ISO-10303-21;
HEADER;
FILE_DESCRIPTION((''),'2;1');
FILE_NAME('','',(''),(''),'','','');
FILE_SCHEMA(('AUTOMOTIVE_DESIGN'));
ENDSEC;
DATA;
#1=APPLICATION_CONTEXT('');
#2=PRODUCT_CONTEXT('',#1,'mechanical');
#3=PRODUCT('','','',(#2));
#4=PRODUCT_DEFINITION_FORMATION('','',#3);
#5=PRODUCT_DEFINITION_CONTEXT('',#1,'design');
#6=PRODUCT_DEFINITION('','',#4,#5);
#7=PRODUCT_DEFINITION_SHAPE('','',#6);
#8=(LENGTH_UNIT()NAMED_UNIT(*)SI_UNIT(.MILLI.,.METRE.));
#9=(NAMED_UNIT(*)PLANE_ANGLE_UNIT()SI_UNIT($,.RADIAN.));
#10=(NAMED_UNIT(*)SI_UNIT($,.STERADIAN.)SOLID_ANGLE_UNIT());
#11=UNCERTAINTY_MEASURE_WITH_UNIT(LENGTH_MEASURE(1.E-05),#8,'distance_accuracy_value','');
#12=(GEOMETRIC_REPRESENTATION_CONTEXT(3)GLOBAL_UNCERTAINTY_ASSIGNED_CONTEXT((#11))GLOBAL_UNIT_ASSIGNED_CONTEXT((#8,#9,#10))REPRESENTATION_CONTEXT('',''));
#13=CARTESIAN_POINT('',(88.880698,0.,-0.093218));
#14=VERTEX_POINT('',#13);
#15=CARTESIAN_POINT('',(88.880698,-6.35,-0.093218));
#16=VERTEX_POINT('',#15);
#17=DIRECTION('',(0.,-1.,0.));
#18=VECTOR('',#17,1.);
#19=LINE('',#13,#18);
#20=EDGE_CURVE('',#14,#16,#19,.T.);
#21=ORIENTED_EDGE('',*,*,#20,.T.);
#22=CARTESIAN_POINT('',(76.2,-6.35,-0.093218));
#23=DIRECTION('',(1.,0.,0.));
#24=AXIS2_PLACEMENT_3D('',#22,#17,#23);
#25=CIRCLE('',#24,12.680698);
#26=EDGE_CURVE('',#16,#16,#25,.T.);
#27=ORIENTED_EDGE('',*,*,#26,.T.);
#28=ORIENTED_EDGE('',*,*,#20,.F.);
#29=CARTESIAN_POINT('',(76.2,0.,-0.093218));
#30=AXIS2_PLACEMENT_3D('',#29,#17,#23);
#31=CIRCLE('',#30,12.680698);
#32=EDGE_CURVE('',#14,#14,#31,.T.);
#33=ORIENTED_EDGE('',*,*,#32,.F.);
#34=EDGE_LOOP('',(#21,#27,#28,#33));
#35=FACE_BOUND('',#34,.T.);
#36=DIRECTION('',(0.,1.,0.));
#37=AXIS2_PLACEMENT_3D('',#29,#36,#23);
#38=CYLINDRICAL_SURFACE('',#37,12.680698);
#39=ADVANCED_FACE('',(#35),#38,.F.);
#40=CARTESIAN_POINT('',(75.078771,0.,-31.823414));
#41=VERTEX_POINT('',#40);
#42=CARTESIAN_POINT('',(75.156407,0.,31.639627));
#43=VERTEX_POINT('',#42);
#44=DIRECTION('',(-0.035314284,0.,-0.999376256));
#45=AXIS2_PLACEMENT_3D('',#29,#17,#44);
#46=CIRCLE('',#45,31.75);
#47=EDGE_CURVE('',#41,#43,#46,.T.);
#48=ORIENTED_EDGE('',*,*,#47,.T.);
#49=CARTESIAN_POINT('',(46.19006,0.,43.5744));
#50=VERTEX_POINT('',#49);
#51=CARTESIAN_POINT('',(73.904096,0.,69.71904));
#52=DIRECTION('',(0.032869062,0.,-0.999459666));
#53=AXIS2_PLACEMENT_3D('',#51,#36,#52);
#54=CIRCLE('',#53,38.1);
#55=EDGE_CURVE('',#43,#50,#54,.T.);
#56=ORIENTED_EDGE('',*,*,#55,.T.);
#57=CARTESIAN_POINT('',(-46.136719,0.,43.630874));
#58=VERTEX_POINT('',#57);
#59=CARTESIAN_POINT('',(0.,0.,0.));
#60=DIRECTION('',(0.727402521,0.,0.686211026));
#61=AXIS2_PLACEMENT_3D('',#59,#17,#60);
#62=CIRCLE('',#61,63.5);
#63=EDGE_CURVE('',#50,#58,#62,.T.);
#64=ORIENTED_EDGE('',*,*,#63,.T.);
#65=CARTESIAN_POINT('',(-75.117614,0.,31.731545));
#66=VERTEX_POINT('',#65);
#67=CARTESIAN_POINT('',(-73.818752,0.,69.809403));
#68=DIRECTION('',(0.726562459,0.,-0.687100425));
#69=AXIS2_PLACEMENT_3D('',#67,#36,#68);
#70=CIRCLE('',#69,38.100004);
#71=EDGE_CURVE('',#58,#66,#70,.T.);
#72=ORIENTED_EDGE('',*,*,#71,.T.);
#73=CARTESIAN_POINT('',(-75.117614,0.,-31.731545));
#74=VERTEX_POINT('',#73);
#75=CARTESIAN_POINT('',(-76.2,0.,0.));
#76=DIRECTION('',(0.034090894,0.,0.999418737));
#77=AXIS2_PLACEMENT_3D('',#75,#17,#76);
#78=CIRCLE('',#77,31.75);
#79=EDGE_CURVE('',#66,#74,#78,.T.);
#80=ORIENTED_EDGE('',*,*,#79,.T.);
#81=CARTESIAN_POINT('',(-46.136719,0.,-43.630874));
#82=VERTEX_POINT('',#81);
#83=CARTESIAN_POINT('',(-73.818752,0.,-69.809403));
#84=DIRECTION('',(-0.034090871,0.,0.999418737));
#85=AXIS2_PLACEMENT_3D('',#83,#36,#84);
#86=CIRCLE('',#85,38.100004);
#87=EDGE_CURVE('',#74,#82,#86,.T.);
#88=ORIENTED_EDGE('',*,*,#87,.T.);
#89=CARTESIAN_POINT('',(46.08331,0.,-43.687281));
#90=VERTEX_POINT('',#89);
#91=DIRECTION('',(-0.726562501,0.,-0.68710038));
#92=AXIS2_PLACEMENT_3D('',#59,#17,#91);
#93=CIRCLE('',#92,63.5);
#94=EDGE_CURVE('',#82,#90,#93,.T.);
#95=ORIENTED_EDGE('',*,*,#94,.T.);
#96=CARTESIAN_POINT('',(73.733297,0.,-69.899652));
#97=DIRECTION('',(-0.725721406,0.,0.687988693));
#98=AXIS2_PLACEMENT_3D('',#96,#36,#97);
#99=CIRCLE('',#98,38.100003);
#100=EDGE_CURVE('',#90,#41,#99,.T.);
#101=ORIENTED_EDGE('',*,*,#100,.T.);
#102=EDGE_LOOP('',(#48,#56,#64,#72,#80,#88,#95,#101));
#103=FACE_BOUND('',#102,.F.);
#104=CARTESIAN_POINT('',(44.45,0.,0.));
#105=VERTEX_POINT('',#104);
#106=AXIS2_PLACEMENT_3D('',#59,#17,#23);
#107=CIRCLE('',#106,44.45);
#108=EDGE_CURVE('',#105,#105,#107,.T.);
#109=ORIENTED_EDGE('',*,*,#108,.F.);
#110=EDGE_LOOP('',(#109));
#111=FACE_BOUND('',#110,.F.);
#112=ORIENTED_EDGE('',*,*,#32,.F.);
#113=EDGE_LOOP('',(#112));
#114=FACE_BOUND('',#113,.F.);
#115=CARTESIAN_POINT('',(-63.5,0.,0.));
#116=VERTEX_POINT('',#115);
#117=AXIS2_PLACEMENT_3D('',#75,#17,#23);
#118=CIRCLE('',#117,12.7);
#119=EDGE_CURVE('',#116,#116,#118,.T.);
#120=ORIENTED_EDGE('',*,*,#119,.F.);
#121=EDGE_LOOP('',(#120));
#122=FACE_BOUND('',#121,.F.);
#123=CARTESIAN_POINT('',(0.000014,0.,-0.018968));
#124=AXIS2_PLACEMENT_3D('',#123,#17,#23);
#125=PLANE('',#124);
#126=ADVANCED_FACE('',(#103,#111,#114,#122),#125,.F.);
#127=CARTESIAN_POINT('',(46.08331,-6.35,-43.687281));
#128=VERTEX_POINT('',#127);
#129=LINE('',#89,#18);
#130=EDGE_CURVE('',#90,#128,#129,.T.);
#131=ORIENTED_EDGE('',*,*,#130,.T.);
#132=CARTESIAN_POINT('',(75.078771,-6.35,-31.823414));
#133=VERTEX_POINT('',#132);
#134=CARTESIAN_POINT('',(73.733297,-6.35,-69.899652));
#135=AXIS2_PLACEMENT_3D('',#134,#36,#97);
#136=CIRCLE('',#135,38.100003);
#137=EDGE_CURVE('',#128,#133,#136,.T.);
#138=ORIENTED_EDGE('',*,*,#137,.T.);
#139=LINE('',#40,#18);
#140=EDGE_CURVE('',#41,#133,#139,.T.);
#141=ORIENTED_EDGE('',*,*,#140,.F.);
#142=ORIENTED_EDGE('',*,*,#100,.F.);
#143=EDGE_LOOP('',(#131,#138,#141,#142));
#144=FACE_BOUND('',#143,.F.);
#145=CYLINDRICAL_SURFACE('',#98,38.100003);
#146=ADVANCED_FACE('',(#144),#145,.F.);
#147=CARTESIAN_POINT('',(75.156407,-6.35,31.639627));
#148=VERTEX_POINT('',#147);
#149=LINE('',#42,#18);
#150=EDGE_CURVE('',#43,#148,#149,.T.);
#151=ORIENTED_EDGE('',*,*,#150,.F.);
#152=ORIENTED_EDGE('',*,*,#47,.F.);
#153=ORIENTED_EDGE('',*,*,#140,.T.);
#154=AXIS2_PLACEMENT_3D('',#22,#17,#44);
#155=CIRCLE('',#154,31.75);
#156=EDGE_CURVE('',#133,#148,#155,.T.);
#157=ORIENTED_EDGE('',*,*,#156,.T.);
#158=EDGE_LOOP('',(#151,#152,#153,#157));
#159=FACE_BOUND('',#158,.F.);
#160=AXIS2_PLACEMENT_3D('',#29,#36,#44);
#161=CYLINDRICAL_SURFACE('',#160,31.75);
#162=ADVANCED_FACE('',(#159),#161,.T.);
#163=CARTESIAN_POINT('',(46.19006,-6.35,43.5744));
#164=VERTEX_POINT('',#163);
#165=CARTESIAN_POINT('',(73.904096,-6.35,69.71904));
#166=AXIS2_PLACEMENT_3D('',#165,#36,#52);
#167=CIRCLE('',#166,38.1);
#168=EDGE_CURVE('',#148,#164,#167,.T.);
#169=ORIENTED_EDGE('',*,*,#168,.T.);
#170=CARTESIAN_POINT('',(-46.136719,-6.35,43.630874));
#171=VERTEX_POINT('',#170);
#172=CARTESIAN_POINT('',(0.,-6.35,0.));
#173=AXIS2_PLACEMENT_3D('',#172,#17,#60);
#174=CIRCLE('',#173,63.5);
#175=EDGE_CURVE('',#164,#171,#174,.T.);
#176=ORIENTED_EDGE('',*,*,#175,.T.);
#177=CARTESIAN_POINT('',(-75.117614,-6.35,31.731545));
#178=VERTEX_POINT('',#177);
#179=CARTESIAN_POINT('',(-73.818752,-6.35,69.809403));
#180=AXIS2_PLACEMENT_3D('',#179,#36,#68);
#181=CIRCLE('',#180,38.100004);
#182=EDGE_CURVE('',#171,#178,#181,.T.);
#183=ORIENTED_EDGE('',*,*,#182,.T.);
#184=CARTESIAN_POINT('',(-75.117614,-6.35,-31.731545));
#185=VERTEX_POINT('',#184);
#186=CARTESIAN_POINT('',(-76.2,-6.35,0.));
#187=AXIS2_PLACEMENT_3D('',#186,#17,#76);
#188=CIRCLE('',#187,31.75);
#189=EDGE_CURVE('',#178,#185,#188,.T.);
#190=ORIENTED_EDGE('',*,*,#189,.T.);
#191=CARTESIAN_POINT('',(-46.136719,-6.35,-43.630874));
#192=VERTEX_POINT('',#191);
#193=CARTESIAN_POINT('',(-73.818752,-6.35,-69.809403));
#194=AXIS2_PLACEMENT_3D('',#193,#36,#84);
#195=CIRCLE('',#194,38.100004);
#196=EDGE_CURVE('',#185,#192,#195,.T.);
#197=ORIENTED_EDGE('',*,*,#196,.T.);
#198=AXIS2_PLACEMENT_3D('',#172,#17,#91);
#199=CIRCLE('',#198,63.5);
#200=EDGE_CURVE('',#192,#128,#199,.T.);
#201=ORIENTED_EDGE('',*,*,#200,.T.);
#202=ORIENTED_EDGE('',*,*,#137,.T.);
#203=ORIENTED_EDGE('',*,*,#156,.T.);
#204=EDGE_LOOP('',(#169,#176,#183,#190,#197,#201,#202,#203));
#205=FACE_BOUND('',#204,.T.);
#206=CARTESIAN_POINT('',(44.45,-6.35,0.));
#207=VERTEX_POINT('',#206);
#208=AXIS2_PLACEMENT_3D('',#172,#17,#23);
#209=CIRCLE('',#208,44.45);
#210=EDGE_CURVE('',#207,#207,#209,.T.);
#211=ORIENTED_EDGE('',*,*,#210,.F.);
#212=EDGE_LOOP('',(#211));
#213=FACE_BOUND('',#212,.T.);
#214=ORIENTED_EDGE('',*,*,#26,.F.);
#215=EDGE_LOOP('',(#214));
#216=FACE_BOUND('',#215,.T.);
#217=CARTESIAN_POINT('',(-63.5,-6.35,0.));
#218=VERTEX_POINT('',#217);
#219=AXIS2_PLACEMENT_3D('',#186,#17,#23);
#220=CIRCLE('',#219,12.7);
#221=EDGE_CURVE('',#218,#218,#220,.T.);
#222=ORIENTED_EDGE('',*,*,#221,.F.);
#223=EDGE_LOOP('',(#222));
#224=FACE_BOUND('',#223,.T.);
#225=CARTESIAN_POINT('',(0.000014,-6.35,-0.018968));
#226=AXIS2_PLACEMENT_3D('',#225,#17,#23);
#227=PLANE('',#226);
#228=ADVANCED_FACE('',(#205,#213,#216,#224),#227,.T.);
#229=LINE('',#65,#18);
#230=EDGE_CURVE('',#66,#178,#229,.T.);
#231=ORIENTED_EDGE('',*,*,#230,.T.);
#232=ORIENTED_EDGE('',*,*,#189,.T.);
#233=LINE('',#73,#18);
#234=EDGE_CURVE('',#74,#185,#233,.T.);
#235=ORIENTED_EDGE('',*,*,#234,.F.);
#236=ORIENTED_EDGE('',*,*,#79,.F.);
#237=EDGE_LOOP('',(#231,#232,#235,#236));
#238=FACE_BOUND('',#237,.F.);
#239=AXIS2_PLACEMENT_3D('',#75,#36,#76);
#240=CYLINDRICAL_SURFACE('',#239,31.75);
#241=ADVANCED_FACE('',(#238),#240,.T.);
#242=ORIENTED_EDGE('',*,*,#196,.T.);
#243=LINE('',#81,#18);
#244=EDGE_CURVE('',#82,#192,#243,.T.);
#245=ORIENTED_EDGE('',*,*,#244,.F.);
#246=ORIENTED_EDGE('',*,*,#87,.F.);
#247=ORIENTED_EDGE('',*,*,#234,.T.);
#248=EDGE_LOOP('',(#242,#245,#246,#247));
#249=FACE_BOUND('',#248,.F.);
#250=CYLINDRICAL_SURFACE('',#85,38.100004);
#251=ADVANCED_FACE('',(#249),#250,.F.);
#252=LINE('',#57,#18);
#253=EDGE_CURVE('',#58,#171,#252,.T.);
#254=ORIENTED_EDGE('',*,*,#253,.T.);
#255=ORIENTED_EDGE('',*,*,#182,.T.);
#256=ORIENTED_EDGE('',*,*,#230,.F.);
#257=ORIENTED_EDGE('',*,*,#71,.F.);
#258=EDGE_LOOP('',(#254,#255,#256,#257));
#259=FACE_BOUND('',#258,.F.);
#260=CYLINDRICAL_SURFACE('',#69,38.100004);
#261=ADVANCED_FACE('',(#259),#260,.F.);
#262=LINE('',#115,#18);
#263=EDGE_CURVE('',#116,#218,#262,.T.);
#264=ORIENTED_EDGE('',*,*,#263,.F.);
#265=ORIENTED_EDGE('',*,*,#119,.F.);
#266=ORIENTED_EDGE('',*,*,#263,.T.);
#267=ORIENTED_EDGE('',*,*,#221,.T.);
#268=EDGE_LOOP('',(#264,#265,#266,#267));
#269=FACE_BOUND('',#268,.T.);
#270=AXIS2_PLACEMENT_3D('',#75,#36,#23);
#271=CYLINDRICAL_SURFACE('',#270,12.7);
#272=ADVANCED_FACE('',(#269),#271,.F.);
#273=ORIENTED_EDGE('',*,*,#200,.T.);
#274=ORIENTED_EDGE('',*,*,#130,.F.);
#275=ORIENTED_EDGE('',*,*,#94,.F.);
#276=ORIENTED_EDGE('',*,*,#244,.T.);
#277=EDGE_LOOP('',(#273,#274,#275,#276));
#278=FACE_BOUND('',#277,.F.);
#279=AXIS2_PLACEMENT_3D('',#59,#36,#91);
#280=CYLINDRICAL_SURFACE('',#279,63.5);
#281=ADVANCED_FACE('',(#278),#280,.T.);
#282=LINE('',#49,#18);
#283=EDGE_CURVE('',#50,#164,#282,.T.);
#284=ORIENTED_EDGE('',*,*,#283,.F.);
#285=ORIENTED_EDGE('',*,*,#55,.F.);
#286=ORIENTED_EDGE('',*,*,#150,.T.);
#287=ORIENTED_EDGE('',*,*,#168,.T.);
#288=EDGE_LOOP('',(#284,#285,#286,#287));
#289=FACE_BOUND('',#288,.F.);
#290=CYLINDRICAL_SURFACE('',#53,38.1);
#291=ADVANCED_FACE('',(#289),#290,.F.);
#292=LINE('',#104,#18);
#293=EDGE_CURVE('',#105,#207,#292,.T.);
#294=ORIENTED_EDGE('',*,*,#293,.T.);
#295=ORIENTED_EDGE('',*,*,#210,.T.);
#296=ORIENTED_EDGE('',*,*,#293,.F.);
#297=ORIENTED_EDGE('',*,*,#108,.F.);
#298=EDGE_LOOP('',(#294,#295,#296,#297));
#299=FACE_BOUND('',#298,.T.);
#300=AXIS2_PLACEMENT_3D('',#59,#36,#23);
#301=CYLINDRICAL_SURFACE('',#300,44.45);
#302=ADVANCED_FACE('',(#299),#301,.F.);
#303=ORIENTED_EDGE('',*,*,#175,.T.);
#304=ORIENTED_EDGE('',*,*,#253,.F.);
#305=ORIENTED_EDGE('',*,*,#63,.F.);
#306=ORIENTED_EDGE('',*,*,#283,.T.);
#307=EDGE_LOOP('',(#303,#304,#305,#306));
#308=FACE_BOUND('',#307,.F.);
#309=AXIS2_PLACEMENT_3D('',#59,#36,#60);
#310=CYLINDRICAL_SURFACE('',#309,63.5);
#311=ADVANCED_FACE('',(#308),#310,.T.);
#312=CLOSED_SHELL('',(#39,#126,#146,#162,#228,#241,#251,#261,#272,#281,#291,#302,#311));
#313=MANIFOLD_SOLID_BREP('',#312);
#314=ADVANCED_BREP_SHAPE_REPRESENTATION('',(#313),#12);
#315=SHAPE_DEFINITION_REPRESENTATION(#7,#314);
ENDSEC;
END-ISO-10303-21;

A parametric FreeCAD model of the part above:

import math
import FreeCAD as App
import Part
import Sketcher
Q = App.Units.Quantity

doc = App.newDocument("Part")
body = doc.addObject("PartDesign::Body", "Body")

# Sketch on XZ plane
sketch1 = body.newObject("Sketcher::SketchObject", "Sketch")
sketch1.AttachmentSupport = (doc.getObject("XZ_Plane"), [""])
sketch1.MapMode = "FlatFace"
sketch1.addGeometry(Part.ArcOfCircle(Part.Circle(App.Vector(-74, 70, 0), App.Vector(0, 0, 1), 38), math.radians(-92), math.radians(-43)), False)
sketch1.addGeometry(Part.ArcOfCircle(Part.Circle(App.Vector(-76, 0, 0), App.Vector(0, 0, 1), 32), math.radians(88), math.radians(272)), False)
sketch1.addGeometry(Part.ArcOfCircle(Part.Circle(App.Vector(-74, -70, 0), App.Vector(0, 0, 1), 38), math.radians(43), math.radians(92)), False)
sketch1.addGeometry(Part.ArcOfCircle(Part.Circle(App.Vector(0, 0, 0), App.Vector(0, 0, 1), 64), math.radians(-137), math.radians(-43)), False)
sketch1.addGeometry(Part.ArcOfCircle(Part.Circle(App.Vector(74, -70, 0), App.Vector(0, 0, 1), 38), math.radians(88), math.radians(137)), False)
sketch1.addGeometry(Part.ArcOfCircle(Part.Circle(App.Vector(76, 0, 0), App.Vector(0, 0, 1), 32), math.radians(-92), math.radians(92)), False)
sketch1.addGeometry(Part.ArcOfCircle(Part.Circle(App.Vector(74, 70, 0), App.Vector(0, 0, 1), 38), math.radians(-137), math.radians(-88)), False)
sketch1.addGeometry(Part.ArcOfCircle(Part.Circle(App.Vector(0, 0, 0), App.Vector(0, 0, 1), 64), math.radians(43), math.radians(137)), False)
sketch1.addGeometry(Part.Circle(App.Vector(76, 0, 0), App.Vector(0, 0, 1), 13), False)
sketch1.addGeometry(Part.Circle(App.Vector(-76, 0, 0), App.Vector(0, 0, 1), 13), False)
sketch1.addGeometry(Part.Circle(App.Vector(0, 0, 0), App.Vector(0, 0, 1), 44), False)
sketch1.addConstraint(Sketcher.Constraint("Tangent", 0, 1, 1, 1))
sketch1.addConstraint(Sketcher.Constraint("Tangent", 1, 2, 2, 2))
sketch1.addConstraint(Sketcher.Constraint("Tangent", 2, 1, 3, 1))
sketch1.addConstraint(Sketcher.Constraint("Tangent", 3, 2, 4, 2))
sketch1.addConstraint(Sketcher.Constraint("Tangent", 4, 1, 5, 1))
sketch1.addConstraint(Sketcher.Constraint("Tangent", 5, 2, 6, 2))
sketch1.addConstraint(Sketcher.Constraint("Tangent", 6, 1, 7, 1))
sketch1.addConstraint(Sketcher.Constraint("Tangent", 7, 2, 0, 2))
sketch1.addConstraint(Sketcher.Constraint("Coincident", 3, 3, -1, 1))
sketch1.addConstraint(Sketcher.Constraint("Coincident", 7, 3, -1, 1))
sketch1.addConstraint(Sketcher.Constraint("Coincident", 10, 3, -1, 1))
sketch1.addConstraint(Sketcher.Constraint("Coincident", 8, 3, 5, 3))
sketch1.addConstraint(Sketcher.Constraint("Coincident", 9, 3, 1, 3))
sketch1.addConstraint(Sketcher.Constraint("Equal", 0, 2))
sketch1.addConstraint(Sketcher.Constraint("Equal", 2, 4))
sketch1.addConstraint(Sketcher.Constraint("Equal", 1, 5))
sketch1.addConstraint(Sketcher.Constraint("Equal", 3, 7))
sketch1.addConstraint(Sketcher.Constraint("PointOnObject", 1, 3, -1))
sketch1.addConstraint(Sketcher.Constraint("Diameter", 9, Q("1 in")))
sketch1.addConstraint(Sketcher.Constraint("Diameter", 10, Q("3.5 in")))
sketch1.addConstraint(Sketcher.Constraint("Radius", 0, Q("1.5000002 in")))
sketch1.addConstraint(Sketcher.Constraint("Radius", 3, Q("2.5 in")))
sketch1.addConstraint(Sketcher.Constraint("Radius", 6, Q("1.5 in")))
sketch1.addConstraint(Sketcher.Constraint("Radius", 1, Q("1.25 in")))
sketch1.addConstraint(Sketcher.Constraint("DistanceX", 1, 3, -1, 1, Q("3 in")))
sketch1.addConstraint(Sketcher.Constraint("DistanceX", -1, 1, 5, 3, Q("3 in")))
sketch1.addConstraint(Sketcher.Constraint("Diameter", 8, Q("25.361396 mm")))
sketch1.addConstraint(Sketcher.Constraint("DistanceY", -1, 1, 6, 1, Q("43.5744 mm")))
pad1 = body.newObject("PartDesign::Pad", "Pad")
pad1.Profile = sketch1
pad1.Length = Q("0.25 in")

doc.recompute()
